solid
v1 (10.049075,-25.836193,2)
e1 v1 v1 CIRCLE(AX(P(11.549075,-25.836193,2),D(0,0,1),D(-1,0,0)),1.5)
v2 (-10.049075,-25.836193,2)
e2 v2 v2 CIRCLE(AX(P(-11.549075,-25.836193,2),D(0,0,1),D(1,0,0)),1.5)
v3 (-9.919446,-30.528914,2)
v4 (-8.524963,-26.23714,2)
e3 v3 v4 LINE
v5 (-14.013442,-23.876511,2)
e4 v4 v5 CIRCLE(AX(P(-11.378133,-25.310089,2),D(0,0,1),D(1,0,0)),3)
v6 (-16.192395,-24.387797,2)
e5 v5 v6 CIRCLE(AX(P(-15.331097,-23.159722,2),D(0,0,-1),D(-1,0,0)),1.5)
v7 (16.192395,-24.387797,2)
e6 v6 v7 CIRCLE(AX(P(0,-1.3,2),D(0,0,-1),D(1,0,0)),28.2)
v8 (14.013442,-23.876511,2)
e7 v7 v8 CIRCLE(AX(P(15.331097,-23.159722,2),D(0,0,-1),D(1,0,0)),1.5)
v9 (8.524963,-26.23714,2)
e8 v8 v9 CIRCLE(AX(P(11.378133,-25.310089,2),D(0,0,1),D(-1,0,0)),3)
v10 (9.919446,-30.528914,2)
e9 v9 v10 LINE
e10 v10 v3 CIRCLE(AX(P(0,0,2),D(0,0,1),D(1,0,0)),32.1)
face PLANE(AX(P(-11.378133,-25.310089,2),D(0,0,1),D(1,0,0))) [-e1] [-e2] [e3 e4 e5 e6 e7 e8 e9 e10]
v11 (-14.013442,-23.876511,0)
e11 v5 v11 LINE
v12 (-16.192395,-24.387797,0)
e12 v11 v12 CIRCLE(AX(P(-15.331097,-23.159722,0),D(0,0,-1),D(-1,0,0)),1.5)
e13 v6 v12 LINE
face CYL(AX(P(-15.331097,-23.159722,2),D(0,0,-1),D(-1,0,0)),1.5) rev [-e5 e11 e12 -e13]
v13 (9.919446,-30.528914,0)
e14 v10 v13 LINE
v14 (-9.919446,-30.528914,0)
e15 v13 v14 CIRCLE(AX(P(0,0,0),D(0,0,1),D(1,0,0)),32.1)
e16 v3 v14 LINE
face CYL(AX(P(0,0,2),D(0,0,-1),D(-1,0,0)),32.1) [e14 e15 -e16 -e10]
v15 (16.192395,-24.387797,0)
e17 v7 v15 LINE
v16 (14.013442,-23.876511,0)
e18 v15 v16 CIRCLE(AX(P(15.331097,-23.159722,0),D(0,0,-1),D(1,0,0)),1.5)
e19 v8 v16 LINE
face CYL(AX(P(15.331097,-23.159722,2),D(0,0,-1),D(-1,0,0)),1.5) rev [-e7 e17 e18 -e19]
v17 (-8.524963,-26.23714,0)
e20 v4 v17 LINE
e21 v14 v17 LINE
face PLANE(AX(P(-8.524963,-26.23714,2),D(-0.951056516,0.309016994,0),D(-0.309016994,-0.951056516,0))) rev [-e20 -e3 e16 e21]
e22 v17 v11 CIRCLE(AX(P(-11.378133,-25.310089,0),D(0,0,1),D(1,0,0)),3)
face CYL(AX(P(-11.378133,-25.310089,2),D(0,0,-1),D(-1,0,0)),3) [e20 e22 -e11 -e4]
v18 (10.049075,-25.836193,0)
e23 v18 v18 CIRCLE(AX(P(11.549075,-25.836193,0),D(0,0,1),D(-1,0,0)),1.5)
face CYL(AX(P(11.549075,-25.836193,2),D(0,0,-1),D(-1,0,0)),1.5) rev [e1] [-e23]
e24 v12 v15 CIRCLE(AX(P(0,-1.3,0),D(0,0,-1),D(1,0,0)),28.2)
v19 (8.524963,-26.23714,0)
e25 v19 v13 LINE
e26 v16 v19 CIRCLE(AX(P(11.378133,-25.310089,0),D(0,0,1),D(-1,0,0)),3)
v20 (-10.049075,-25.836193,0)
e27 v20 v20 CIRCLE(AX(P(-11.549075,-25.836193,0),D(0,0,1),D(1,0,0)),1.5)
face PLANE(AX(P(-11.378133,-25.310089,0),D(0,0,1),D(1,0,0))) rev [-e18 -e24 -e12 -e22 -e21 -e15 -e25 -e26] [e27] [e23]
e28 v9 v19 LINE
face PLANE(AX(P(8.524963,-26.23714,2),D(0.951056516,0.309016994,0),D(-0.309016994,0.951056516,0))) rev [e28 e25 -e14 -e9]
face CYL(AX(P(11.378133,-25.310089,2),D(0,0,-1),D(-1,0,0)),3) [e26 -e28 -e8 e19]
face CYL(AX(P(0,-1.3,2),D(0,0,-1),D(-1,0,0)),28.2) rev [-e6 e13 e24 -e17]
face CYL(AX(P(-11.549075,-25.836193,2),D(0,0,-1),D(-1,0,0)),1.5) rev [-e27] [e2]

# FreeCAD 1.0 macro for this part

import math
import FreeCAD as App
import Part
import Sketcher

V = App.Vector
Q = App.Units.Quantity

doc = App.newDocument("Part")
body = doc.addObject("PartDesign::Body", "Body")

# Sketch on XY plane
sketch1 = body.newObject("Sketcher::SketchObject", "Sketch")
sketch1.AttachmentSupport = (doc.getObject("XY_Plane"), [""])
sketch1.MapMode = "FlatFace"
sketch1.addGeometry(Part.LineSegment(V(-9.9, -30.5, 0), V(-8.5, -26.2, 0)), False)
sketch1.addGeometry(Part.ArcOfCircle(Part.Circle(V(-11.4, -25.3, 0), V(0, 0, 1), 3), math.radians(-18), math.radians(151)), False)
sketch1.addGeometry(Part.ArcOfCircle(Part.Circle(V(-15.3, -23.2, 0), V(0, 0, 1), 1.5), math.radians(-125), math.radians(-29)), False)
sketch1.addGeometry(Part.ArcOfCircle(Part.Circle(V(0, -1.3, 0), V(0, 0, 1), 28.2), math.radians(-55), math.radians(235)), False)
sketch1.addGeometry(Part.ArcOfCircle(Part.Circle(V(15.3, -23.2, 0), V(0, 0, 1), 1.5), math.radians(-151), math.radians(-55)), False)
sketch1.addGeometry(Part.ArcOfCircle(Part.Circle(V(11.4, -25.3, 0), V(0, 0, 1), 3), math.radians(29), math.radians(198)), False)
sketch1.addGeometry(Part.LineSegment(V(8.5, -26.2, 0), V(9.9, -30.5, 0)), False)
sketch1.addGeometry(Part.ArcOfCircle(Part.Circle(V(0, 0, 0), V(0, 0, 1), 32.1), math.radians(-72), math.radians(252)), False)
sketch1.addGeometry(Part.Circle(V(11.5, -25.8, 0), V(0, 0, 1), 1.5), False)
sketch1.addGeometry(Part.Circle(V(-11.5, -25.8, 0), V(0, 0, 1), 1.5), False)
sketch1.addConstraint(Sketcher.Constraint("Tangent", 0, 2, 1, 1))
sketch1.addConstraint(Sketcher.Constraint("Tangent", 1, 2, 2, 2))
sketch1.addConstraint(Sketcher.Constraint("Tangent", 2, 1, 3, 2))
sketch1.addConstraint(Sketcher.Constraint("Tangent", 3, 1, 4, 2))
sketch1.addConstraint(Sketcher.Constraint("Tangent", 4, 1, 5, 1))
sketch1.addConstraint(Sketcher.Constraint("Tangent", 5, 2, 6, 1))
sketch1.addConstraint(Sketcher.Constraint("Coincident", 6, 2, 7, 1))
sketch1.addConstraint(Sketcher.Constraint("Coincident", 7, 2, 0, 1))
sketch1.addConstraint(Sketcher.Constraint("Coincident", 7, 3, -1, 1))
sketch1.addConstraint(Sketcher.Constraint("Equal", 2, 4))
sketch1.addConstraint(Sketcher.Constraint("Equal", 1, 5))
sketch1.addConstraint(Sketcher.Constraint("Equal", 4, 8))
sketch1.addConstraint(Sketcher.Constraint("Equal", 8, 9))
sketch1.addConstraint(Sketcher.Constraint("Symmetric", 2, 3, 4, 3, -2))
sketch1.addConstraint(Sketcher.Constraint("Symmetric", 8, 3, 9, 3, -2))
sketch1.addConstraint(Sketcher.Constraint("Symmetric", 0, 2, 5, 2, -2))
sketch1.addConstraint(Sketcher.Constraint("Diameter", 8, 3.0))
sketch1.addConstraint(Sketcher.Constraint("Radius", 1, 3.0))
sketch1.addConstraint(Sketcher.Constraint("Radius", 3, 28.2))
sketch1.addConstraint(Sketcher.Constraint("Radius", 7, 32.1))
sketch1.addConstraint(Sketcher.Constraint("Angle", 0, Q("72 deg")))
sketch1.addConstraint(Sketcher.Constraint("DistanceY", 3, 3, -1, 1, 1.3))
sketch1.addConstraint(Sketcher.Constraint("Distance", 0, 4.512639))
sketch1.addConstraint(Sketcher.Constraint("DistanceY", 1, 3, -1, 1, 25.310089))
sketch1.addConstraint(Sketcher.Constraint("DistanceX", 5, 3, 8, 3, 0.170942))
sketch1.addConstraint(Sketcher.Constraint("DistanceY", 8, 3, 4, 3, 2.676471))
pad1 = body.newObject("PartDesign::Pad", "Pad")
pad1.Profile = sketch1
pad1.Length = 2

doc.recompute()
